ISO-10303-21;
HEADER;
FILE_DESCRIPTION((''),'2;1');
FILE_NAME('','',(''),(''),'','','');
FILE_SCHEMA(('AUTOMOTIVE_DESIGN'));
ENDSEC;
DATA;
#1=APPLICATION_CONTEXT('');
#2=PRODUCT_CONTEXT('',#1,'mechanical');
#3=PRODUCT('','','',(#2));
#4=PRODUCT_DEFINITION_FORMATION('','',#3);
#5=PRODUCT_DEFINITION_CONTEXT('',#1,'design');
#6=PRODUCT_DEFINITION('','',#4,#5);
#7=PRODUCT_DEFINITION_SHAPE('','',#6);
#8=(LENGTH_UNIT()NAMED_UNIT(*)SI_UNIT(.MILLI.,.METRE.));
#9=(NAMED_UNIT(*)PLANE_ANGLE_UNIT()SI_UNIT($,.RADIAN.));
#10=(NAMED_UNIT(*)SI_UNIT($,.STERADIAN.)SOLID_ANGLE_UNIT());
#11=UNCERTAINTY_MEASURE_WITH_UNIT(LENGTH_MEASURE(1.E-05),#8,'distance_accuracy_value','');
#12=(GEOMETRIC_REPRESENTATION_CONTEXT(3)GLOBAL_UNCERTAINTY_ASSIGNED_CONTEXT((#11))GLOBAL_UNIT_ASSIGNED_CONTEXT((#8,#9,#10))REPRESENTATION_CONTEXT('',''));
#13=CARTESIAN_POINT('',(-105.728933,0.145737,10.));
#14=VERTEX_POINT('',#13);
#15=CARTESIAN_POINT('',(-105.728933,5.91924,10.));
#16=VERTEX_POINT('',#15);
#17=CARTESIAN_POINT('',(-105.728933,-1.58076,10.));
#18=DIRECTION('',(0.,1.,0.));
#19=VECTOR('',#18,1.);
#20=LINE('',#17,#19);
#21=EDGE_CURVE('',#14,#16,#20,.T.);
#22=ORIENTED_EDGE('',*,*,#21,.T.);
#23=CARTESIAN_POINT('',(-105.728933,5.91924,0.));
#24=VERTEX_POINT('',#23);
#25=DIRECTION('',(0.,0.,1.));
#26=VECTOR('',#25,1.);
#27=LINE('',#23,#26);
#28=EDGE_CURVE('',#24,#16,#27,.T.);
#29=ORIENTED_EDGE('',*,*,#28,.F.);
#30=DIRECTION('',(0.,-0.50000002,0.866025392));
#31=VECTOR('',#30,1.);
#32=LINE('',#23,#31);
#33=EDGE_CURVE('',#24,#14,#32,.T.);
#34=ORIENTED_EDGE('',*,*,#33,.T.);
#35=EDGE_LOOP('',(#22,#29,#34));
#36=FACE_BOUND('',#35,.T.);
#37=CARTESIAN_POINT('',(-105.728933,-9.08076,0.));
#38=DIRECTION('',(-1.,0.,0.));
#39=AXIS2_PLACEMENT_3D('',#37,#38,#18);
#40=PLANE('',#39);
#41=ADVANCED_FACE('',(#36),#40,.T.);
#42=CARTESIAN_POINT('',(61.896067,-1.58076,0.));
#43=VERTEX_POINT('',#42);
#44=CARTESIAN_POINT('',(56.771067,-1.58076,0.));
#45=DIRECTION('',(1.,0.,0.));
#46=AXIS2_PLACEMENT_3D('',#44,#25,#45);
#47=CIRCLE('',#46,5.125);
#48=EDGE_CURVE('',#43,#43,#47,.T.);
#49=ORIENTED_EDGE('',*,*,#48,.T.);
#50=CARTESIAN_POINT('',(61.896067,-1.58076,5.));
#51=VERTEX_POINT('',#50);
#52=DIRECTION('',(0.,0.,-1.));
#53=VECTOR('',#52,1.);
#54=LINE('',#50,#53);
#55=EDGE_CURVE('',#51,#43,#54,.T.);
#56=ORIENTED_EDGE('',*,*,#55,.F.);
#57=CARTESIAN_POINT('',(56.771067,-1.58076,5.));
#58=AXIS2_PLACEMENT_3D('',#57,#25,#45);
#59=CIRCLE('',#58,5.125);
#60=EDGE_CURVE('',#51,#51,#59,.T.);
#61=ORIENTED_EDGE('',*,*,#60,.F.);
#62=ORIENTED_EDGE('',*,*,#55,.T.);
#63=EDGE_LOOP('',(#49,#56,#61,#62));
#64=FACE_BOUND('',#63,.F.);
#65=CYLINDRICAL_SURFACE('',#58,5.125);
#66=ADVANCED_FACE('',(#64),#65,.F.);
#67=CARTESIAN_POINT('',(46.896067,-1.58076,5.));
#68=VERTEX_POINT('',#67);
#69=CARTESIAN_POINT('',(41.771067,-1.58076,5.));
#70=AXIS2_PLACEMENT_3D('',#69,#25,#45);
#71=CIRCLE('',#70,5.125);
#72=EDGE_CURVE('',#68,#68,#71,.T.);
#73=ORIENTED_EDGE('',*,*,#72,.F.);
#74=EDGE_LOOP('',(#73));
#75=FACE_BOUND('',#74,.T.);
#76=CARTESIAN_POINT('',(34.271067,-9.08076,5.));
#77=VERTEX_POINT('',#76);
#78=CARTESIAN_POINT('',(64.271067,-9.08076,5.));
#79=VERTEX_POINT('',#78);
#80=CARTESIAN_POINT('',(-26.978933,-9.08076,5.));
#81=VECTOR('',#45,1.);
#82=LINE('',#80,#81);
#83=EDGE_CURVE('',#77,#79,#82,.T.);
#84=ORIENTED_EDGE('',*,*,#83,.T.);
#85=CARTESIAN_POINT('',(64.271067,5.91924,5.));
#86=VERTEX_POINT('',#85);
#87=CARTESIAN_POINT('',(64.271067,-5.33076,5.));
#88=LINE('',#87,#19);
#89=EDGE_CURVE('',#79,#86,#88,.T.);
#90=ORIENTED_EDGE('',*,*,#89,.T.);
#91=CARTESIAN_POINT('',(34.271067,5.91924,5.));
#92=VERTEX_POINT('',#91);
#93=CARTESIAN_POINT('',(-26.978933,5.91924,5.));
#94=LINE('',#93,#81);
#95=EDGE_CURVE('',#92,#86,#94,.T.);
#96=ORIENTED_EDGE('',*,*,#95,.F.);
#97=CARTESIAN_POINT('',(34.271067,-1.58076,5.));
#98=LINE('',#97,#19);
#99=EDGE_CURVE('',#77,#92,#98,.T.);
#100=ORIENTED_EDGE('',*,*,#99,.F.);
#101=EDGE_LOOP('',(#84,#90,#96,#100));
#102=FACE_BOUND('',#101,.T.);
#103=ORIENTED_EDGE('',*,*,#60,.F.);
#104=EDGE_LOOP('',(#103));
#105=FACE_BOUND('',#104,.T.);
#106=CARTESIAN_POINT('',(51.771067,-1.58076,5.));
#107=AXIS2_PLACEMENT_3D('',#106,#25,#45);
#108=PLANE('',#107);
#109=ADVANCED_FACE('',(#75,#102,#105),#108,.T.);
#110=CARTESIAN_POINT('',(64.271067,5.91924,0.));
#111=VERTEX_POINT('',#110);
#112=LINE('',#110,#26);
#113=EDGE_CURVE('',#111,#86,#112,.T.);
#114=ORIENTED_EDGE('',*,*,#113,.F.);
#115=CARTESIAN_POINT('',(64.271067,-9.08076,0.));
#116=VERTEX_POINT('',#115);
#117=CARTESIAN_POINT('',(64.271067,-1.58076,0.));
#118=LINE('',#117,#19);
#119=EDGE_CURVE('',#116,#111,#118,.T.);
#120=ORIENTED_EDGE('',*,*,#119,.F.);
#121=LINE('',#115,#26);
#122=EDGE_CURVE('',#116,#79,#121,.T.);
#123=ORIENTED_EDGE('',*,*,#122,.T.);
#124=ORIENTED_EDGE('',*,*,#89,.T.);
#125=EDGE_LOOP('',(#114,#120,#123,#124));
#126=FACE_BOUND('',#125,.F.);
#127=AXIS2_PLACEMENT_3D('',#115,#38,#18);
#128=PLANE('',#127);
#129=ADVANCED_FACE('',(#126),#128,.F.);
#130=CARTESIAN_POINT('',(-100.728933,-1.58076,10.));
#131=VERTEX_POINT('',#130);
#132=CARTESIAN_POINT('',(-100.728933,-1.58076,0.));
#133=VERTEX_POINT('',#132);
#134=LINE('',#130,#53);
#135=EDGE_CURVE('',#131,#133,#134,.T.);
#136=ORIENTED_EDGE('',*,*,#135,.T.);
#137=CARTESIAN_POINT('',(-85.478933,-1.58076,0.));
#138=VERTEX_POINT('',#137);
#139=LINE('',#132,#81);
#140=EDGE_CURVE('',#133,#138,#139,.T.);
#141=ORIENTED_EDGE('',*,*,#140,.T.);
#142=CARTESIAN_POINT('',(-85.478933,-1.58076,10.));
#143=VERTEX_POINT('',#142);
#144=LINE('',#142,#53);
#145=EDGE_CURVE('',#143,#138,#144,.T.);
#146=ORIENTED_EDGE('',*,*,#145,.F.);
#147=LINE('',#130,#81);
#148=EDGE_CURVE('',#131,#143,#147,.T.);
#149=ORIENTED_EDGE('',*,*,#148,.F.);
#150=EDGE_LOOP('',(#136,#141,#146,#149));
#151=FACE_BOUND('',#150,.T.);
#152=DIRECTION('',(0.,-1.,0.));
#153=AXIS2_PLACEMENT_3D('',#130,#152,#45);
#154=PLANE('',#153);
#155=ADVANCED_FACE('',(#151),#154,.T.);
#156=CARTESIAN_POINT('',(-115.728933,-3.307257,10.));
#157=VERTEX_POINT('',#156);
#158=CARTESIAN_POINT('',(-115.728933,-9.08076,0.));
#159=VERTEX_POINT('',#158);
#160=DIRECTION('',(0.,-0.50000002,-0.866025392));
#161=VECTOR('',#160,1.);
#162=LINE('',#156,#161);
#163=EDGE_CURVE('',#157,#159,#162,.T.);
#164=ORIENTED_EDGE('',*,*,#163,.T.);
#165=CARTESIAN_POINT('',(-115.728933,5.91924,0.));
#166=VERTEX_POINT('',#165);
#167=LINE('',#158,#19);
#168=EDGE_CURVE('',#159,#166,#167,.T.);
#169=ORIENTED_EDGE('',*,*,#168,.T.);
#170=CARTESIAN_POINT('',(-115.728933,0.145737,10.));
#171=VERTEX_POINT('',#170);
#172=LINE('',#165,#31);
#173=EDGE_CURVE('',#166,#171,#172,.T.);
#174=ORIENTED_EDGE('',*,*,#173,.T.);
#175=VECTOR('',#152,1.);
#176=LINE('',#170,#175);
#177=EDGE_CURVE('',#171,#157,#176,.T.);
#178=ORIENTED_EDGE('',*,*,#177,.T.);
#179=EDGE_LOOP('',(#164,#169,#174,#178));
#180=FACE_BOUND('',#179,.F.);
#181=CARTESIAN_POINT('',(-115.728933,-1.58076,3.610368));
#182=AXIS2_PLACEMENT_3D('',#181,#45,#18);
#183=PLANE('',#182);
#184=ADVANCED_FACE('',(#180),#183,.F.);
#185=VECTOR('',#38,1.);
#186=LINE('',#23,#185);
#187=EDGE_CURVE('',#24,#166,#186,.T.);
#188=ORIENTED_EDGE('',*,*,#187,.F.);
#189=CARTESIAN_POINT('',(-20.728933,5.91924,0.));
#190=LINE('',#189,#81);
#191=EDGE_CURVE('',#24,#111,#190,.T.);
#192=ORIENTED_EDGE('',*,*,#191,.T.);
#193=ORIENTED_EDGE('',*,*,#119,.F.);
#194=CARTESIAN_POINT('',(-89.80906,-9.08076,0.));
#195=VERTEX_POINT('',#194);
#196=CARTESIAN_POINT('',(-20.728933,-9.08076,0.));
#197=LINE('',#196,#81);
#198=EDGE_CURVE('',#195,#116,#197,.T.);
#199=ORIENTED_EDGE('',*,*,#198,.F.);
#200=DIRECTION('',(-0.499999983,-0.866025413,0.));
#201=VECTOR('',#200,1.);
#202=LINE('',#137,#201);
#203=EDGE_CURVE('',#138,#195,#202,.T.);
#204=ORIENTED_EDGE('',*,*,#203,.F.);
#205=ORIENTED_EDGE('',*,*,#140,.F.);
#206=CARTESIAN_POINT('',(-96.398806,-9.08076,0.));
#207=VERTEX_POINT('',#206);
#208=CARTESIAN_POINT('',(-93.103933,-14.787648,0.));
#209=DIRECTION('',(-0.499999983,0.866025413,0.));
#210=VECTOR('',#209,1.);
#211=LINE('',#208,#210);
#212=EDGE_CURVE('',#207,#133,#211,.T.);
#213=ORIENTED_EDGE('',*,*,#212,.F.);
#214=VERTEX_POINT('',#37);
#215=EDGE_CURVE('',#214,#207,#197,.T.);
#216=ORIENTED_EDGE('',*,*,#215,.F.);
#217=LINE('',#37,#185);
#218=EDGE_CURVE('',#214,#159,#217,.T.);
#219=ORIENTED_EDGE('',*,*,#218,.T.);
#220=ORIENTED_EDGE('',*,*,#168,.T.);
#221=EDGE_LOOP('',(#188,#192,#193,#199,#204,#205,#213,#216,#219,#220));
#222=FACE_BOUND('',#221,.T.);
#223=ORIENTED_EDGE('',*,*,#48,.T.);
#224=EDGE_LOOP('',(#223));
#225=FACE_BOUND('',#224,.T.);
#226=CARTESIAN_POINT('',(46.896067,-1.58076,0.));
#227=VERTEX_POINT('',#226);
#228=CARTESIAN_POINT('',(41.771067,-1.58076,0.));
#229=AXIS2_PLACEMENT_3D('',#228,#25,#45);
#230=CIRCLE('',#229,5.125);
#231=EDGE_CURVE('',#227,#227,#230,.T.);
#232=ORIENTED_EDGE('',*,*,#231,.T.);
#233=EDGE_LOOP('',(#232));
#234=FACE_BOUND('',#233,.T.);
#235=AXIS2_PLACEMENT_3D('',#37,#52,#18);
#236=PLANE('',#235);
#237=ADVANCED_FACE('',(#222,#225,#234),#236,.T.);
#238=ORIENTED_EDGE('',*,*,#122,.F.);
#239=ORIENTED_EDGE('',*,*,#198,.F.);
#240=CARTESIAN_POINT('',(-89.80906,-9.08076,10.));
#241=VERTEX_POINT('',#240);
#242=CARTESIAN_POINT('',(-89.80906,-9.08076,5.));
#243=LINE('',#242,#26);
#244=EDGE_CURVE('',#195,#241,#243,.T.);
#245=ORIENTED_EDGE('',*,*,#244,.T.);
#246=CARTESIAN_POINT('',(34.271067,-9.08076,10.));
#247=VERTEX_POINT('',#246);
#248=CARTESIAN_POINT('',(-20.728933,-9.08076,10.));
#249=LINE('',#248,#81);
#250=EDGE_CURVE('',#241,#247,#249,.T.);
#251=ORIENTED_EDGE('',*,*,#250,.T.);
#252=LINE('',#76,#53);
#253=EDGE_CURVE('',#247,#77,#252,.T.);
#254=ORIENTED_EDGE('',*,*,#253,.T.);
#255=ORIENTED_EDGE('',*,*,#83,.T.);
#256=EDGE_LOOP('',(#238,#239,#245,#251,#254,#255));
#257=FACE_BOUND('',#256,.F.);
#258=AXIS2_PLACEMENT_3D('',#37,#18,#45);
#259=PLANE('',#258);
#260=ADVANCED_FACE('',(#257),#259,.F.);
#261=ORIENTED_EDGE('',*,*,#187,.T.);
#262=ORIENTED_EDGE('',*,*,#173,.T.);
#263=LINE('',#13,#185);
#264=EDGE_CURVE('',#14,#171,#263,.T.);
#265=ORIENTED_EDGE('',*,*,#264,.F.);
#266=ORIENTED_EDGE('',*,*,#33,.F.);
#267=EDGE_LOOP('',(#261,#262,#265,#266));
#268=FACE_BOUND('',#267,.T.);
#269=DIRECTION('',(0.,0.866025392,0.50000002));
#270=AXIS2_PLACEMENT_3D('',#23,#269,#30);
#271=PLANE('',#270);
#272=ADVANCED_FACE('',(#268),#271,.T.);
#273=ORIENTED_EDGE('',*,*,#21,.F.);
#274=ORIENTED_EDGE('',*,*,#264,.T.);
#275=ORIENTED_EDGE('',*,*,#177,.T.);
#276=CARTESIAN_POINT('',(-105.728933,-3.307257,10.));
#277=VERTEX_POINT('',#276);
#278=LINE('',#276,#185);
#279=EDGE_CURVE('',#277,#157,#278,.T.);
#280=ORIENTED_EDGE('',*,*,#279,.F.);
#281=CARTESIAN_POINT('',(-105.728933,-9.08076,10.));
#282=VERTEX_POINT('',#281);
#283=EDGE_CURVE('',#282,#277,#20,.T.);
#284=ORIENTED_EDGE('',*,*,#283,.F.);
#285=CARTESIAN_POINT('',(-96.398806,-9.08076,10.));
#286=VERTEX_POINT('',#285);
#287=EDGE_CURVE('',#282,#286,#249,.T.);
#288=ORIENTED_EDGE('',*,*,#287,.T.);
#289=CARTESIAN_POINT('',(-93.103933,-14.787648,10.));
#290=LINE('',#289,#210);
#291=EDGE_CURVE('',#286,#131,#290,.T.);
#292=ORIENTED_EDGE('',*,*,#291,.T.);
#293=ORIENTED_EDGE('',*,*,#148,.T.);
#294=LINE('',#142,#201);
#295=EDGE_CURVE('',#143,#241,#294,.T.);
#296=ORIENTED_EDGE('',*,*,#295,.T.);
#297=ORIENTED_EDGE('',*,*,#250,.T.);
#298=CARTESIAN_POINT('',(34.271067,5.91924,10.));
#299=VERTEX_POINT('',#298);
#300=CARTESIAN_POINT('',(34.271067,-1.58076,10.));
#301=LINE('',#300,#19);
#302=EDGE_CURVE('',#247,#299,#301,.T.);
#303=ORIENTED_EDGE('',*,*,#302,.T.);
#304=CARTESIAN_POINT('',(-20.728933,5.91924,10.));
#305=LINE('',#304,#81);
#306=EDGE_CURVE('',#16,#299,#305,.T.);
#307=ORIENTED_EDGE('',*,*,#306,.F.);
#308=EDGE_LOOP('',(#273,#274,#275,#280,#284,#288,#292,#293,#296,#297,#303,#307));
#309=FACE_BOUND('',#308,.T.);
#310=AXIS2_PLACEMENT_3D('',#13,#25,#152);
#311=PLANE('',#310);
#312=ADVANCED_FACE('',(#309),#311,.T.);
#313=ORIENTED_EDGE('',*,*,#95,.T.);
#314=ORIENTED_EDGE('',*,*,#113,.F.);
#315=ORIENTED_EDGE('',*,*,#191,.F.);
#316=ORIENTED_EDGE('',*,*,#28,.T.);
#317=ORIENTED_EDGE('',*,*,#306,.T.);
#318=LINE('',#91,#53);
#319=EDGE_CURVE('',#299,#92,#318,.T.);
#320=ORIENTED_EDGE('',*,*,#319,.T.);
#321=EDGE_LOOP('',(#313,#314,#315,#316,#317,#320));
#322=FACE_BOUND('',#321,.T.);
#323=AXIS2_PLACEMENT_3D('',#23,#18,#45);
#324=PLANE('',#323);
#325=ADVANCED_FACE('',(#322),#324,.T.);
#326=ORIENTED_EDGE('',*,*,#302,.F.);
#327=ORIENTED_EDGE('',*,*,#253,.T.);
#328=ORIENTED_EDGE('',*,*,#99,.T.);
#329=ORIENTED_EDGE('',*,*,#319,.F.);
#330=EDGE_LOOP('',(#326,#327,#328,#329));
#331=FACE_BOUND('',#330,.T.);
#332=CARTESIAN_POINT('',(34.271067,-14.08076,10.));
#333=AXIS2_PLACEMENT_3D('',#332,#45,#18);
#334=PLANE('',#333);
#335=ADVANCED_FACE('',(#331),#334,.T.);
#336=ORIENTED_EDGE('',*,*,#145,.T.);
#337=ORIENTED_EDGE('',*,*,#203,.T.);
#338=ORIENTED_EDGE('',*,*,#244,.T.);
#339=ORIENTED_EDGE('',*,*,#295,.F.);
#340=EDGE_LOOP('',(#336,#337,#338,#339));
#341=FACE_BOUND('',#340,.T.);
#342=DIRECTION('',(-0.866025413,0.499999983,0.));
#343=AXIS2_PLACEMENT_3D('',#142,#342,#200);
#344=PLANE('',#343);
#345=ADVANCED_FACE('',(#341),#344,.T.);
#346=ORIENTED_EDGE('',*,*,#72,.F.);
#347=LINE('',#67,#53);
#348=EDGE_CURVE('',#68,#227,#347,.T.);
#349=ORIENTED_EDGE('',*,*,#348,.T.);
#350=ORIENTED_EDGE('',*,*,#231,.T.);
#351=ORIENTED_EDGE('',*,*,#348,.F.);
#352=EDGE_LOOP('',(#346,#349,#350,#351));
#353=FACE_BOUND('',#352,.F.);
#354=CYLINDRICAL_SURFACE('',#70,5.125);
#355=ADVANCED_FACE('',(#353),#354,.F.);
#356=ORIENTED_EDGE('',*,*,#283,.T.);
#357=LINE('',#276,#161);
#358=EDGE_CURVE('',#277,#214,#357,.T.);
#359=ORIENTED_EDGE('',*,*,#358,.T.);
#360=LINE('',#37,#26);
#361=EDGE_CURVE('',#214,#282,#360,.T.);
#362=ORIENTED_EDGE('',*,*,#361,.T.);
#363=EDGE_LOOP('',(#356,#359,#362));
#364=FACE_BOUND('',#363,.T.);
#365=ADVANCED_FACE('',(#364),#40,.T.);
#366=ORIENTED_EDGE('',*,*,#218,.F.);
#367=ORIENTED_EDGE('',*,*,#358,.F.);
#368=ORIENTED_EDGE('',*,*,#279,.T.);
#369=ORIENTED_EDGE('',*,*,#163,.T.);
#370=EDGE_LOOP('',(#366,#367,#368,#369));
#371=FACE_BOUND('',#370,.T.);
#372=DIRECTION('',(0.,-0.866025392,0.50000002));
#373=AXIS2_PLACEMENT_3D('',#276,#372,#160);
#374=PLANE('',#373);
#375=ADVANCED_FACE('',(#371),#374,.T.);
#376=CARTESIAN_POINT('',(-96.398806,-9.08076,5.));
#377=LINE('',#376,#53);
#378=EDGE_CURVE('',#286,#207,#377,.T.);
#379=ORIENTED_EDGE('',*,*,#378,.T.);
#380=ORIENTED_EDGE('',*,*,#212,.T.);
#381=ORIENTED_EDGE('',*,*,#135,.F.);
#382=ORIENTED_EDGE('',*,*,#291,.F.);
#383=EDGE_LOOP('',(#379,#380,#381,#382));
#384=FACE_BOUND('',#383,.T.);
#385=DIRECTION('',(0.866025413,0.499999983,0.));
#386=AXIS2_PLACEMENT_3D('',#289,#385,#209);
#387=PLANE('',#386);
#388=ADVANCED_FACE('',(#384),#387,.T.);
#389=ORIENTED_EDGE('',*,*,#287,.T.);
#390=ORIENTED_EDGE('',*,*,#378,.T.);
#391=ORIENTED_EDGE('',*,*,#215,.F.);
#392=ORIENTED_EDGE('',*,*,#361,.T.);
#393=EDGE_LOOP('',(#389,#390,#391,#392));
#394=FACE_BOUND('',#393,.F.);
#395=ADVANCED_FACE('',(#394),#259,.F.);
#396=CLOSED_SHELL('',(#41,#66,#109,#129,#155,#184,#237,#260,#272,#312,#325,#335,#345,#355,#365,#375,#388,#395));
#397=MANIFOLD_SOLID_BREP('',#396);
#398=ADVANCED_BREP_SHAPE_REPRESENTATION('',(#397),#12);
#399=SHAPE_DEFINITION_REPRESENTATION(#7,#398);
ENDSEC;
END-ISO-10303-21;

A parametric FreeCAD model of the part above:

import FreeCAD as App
import Part
import Sketcher
from FreeCAD import Vector
Q = App.Units.Quantity


def add_polygon(sketch, points):
    """Adds a closed chain of lines whose ends are joined by coincident constraints."""
    first, n = sketch.GeometryCount, len(points)
    for a, b in zip(points, points[1:] + points[:1]):
        sketch.addGeometry(Part.LineSegment(App.Vector(*a, 0), App.Vector(*b, 0)), False)
    for i in range(n):
        sketch.addConstraint(Sketcher.Constraint("Coincident", first + i, 2, first + (i + 1) % n, 1))

doc = App.newDocument("Part")
params = doc.addObject("Spreadsheet::Sheet", "Params")
for row, (alias, value) in enumerate([
    ("sketch1_width", "170 mm"),
    ("sketch1_height", "15 mm"),
    ("pad1_length", "10 mm"),
    ("sketch2_width", "35 mm"),
    ("sketch2_height", "25 mm"),
    ("pocket1_length", "5 mm"),
    ("sketch3_width", "15 mm"),
    ("pad2_length", "10 mm"),
    ("sketch4_width", "15.25 mm"),
    ("pocket2_length", "10 mm"),
    ("sketch5_diameter", "10.25 mm"),
    ("pocket3_length", "5 mm"),
], start=1):
    params.set(f"A{row}", alias)
    params.set(f"B{row}", "=" + value)
    params.setAlias(f"B{row}", alias)

body = doc.addObject("PartDesign::Body", "Body")

# Sketch on XY plane
sketch1 = body.newObject("Sketcher::SketchObject", "Sketch")
sketch1.AttachmentSupport = (doc.getObject("XY_Plane"), [""])
sketch1.MapMode = "FlatFace"
add_polygon(sketch1, [(-106, 6), (-106, -9), (64, -9), (64, 6)])  # lines 0-3
sketch1.addConstraint(Sketcher.Constraint("Vertical", 0))
sketch1.addConstraint(Sketcher.Constraint("Horizontal", 1))
sketch1.addConstraint(Sketcher.Constraint("Vertical", 2))
sketch1.addConstraint(Sketcher.Constraint("Horizontal", 3))
sketch1.addConstraint(Sketcher.Constraint("DistanceX", 1, 1, 1, 2, Q("170 mm")))
sketch1.addConstraint(Sketcher.Constraint("DistanceY", 0, 2, 0, 1, Q("15 mm")))
sketch1.addConstraint(Sketcher.Constraint("DistanceY", 0, 2, -1, 1, Q("9.08076 mm")))
sketch1.addConstraint(Sketcher.Constraint("DistanceX", 0, 2, -1, 1, Q("105.728933 mm")))
sketch1.setExpression("Constraints[8]", "Params.sketch1_width")
sketch1.setExpression("Constraints[9]", "Params.sketch1_height")
pad1 = body.newObject("PartDesign::Pad", "Pad")
pad1.Profile = sketch1
pad1.setExpression("Length", "Params.pad1_length")

# Sketch on XY plane
sketch2 = body.newObject("Sketcher::SketchObject", "Sketch001")
sketch2.AttachmentSupport = (doc.getObject("XY_Plane"), [""])
sketch2.MapMode = "FlatFace"
sketch2.AttachmentOffset = App.Placement(Vector(0, 0, 10), App.Rotation())
add_polygon(sketch2, [(34, 11), (34, -14), (69, -14), (69, 11)])  # lines 0-3
sketch2.addConstraint(Sketcher.Constraint("Vertical", 0))
sketch2.addConstraint(Sketcher.Constraint("Horizontal", 1))
sketch2.addConstraint(Sketcher.Constraint("Vertical", 2))
sketch2.addConstraint(Sketcher.Constraint("Horizontal", 3))
sketch2.addConstraint(Sketcher.Constraint("DistanceX", 1, 1, 1, 2, Q("35 mm")))
sketch2.addConstraint(Sketcher.Constraint("DistanceY", 0, 2, 0, 1, Q("25 mm")))
sketch2.addConstraint(Sketcher.Constraint("DistanceY", 0, 2, -1, 1, Q("14.08076 mm")))
sketch2.addConstraint(Sketcher.Constraint("DistanceX", -1, 1, 0, 2, Q("34.271067 mm")))
sketch2.setExpression("Constraints[8]", "Params.sketch2_width")
sketch2.setExpression("Constraints[9]", "Params.sketch2_height")
pocket1 = body.newObject("PartDesign::Pocket", "Pocket")
pocket1.Profile = sketch2
pocket1.setExpression("Length", "Params.pocket1_length")

# Sketch on YZ plane
sketch3 = body.newObject("Sketcher::SketchObject", "Sketch002")
sketch3.AttachmentSupport = (doc.getObject("YZ_Plane"), [""])
sketch3.MapMode = "FlatFace"
sketch3.AttachmentOffset = App.Placement(Vector(0, 0, -105.728933), App.Rotation())
add_polygon(sketch3, [(0.1, 10), (5.9, 0), (-9.1, 0), (-3.3, 10)])  # lines 0-3
sketch3.addConstraint(Sketcher.Constraint("Horizontal", 1))
sketch3.addConstraint(Sketcher.Constraint("Horizontal", 3))
sketch3.addConstraint(Sketcher.Constraint("PointOnObject", 0, 2, -1))
sketch3.addConstraint(Sketcher.Constraint("Equal", 0, 2))
sketch3.addConstraint(Sketcher.Constraint("DistanceX", 1, 2, 1, 1, Q("15 mm")))
sketch3.addConstraint(Sketcher.Constraint("Angle", 0, Q("-59.999999 deg")))
sketch3.addConstraint(Sketcher.Constraint("DistanceY", -1, 1, 2, 2, Q("10 mm")))
sketch3.addConstraint(Sketcher.Constraint("DistanceX", -1, 1, 0, 2, Q("5.91924 mm")))
sketch3.setExpression("Constraints[8]", "Params.sketch3_width")
pad2 = body.newObject("PartDesign::Pad", "Pad001")
pad2.Profile = sketch3
pad2.setExpression("Length", "Params.pad2_length")
pad2.Reversed = True

# Sketch on XY plane
sketch4 = body.newObject("Sketcher::SketchObject", "Sketch003")
sketch4.AttachmentSupport = (doc.getObject("XY_Plane"), [""])
sketch4.MapMode = "FlatFace"
sketch4.AttachmentOffset = App.Placement(Vector(0, 0, 10), App.Rotation())
add_polygon(sketch4, [(-101, -2), (-93, -15), (-85, -2)])  # lines 0-2
sketch4.addConstraint(Sketcher.Constraint("Horizontal", 2))
sketch4.addConstraint(Sketcher.Constraint("Equal", 0, 1))
sketch4.addConstraint(Sketcher.Constraint("Angle", 0, Q("-60.000001 deg")))
sketch4.addConstraint(Sketcher.Constraint("DistanceX", 2, 2, 2, 1, Q("15.25 mm")))
sketch4.addConstraint(Sketcher.Constraint("DistanceY", 0, 2, -1, 1, Q("14.787648 mm")))
sketch4.addConstraint(Sketcher.Constraint("DistanceX", 0, 2, -1, 1, Q("93.103933 mm")))
sketch4.setExpression("Constraints[6]", "Params.sketch4_width")
pocket2 = body.newObject("PartDesign::Pocket", "Pocket001")
pocket2.Profile = sketch4
pocket2.setExpression("Length", "Params.pocket2_length")

# Sketch on XY plane
sketch5 = body.newObject("Sketcher::SketchObject", "Sketch004")
sketch5.AttachmentSupport = (doc.getObject("XY_Plane"), [""])
sketch5.MapMode = "FlatFace"
sketch5.AttachmentOffset = App.Placement(Vector(0, 0, 5), App.Rotation())
sketch5.addGeometry(Part.Circle(Vector(57, -2, 0), Vector(0, 0, 1), 5), False)
sketch5.addGeometry(Part.Circle(Vector(42, -2, 0), Vector(0, 0, 1), 5), False)
sketch5.addConstraint(Sketcher.Constraint("Equal", 0, 1))
sketch5.addConstraint(Sketcher.Constraint("Horizontal", 0, 3, 1, 3))
sketch5.addConstraint(Sketcher.Constraint("Diameter", 0, Q("10.25 mm")))
sketch5.addConstraint(Sketcher.Constraint("DistanceX", 1, 3, 0, 3, Q("15 mm")))
sketch5.addConstraint(Sketcher.Constraint("DistanceY", 0, 3, -1, 1, Q("1.58076 mm")))
sketch5.addConstraint(Sketcher.Constraint("DistanceX", -1, 1, 0, 3, Q("56.771067 mm")))
sketch5.setExpression("Constraints[2]", "Params.sketch5_diameter")
pocket3 = body.newObject("PartDesign::Pocket", "Pocket002")
pocket3.Profile = sketch5
pocket3.setExpression("Length", "Params.pocket3_length")

doc.recompute()
